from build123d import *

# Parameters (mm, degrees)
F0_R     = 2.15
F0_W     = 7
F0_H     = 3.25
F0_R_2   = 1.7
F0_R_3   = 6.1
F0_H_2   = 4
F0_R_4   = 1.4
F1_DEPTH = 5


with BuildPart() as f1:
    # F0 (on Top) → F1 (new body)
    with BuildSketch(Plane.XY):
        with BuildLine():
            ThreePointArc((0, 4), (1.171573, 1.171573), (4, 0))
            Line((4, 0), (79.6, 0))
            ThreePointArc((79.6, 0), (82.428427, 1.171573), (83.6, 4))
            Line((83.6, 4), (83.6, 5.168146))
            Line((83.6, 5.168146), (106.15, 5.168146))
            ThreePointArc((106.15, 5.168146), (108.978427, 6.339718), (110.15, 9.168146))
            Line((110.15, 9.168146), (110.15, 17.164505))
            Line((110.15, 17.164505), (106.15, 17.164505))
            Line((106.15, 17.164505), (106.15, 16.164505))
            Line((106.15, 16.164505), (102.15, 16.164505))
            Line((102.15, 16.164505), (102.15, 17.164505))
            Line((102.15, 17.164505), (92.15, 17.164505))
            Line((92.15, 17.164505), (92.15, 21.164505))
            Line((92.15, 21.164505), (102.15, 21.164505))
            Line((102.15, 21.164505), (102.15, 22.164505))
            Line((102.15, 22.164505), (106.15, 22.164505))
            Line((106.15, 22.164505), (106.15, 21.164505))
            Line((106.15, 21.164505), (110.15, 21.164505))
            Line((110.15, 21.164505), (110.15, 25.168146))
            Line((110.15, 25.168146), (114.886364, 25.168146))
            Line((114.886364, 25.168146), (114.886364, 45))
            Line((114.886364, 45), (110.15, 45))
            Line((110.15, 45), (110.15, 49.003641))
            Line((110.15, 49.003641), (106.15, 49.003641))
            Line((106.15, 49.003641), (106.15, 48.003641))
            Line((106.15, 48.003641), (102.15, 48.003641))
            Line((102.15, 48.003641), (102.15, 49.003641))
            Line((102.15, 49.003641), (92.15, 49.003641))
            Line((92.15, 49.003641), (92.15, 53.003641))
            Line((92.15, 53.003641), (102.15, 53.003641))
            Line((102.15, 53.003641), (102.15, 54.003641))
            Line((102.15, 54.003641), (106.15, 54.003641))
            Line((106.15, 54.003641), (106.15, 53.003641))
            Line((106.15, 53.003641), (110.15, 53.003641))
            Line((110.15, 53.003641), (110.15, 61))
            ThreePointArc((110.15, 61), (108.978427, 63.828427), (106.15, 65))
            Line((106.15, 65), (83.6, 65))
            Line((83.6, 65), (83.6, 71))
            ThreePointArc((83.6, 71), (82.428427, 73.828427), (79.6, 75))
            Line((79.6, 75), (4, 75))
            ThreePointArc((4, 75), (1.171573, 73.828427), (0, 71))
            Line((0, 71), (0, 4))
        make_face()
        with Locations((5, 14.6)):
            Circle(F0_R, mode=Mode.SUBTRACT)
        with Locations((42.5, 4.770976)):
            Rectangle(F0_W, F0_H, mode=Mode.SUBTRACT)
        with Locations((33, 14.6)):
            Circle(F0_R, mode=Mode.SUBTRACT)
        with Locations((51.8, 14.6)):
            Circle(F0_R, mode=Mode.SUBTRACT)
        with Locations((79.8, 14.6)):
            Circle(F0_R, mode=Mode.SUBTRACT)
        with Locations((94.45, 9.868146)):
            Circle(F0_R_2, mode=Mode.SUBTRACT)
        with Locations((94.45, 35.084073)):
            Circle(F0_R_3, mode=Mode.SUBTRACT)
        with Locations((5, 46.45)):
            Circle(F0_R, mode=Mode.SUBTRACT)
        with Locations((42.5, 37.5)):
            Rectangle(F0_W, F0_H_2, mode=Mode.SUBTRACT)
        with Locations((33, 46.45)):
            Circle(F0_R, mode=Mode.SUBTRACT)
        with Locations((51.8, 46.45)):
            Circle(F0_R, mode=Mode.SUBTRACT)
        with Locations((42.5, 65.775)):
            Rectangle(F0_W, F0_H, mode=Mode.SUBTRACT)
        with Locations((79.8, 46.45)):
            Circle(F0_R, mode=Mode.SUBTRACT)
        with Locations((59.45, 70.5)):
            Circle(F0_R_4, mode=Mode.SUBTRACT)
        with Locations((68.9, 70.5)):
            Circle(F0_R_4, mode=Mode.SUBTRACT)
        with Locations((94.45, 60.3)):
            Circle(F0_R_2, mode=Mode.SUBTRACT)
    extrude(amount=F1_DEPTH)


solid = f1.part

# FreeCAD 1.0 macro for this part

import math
import FreeCAD as App
import Part
import Sketcher

V = App.Vector

doc = App.newDocument("Part")
body = doc.addObject("PartDesign::Body", "Body")

# Sketch on XY plane
sketch1 = body.newObject("Sketcher::SketchObject", "Sketch")
sketch1.AttachmentSupport = (doc.getObject("XY_Plane"), [""])
sketch1.MapMode = "FlatFace"
sketch1.addGeometry([
    Part.ArcOfCircle(Part.Circle(V(4, 4, 0), V(0, 0, 1), 4), math.radians(-180), math.radians(-90)),  # 0
    Part.LineSegment(V(4, 0, 0), V(79.6, 0, 0)),  # 1
    Part.ArcOfCircle(Part.Circle(V(79.6, 4, 0), V(0, 0, 1), 4), math.radians(-90), math.radians(0)),  # 2
    Part.LineSegment(V(83.6, 4, 0), V(83.6, 5.2, 0)),  # 3
    Part.LineSegment(V(83.6, 5.2, 0), V(106.2, 5.2, 0)),  # 4
    Part.ArcOfCircle(Part.Circle(V(106.2, 9.2, 0), V(0, 0, 1), 4), math.radians(-90), math.radians(0)),  # 5
    Part.LineSegment(V(110.2, 9.2, 0), V(110.2, 17.2, 0)),  # 6
    Part.LineSegment(V(110.2, 17.2, 0), V(106.2, 17.2, 0)),  # 7
    Part.LineSegment(V(106.2, 17.2, 0), V(106.2, 16.2, 0)),  # 8
    Part.LineSegment(V(106.2, 16.2, 0), V(102.2, 16.2, 0)),  # 9
    Part.LineSegment(V(102.2, 16.2, 0), V(102.2, 17.2, 0)),  # 10
    Part.LineSegment(V(102.2, 17.2, 0), V(92.2, 17.2, 0)),  # 11
    Part.LineSegment(V(92.2, 17.2, 0), V(92.2, 21.2, 0)),  # 12
    Part.LineSegment(V(92.2, 21.2, 0), V(102.2, 21.2, 0)),  # 13
    Part.LineSegment(V(102.2, 21.2, 0), V(102.2, 22.2, 0)),  # 14
    Part.LineSegment(V(102.2, 22.2, 0), V(106.2, 22.2, 0)),  # 15
    Part.LineSegment(V(106.2, 22.2, 0), V(106.2, 21.2, 0)),  # 16
    Part.LineSegment(V(106.2, 21.2, 0), V(110.2, 21.2, 0)),  # 17
    Part.LineSegment(V(110.2, 21.2, 0), V(110.2, 25.2, 0)),  # 18
    Part.LineSegment(V(110.2, 25.2, 0), V(114.9, 25.2, 0)),  # 19
    Part.LineSegment(V(114.9, 25.2, 0), V(114.9, 45, 0)),  # 20
    Part.LineSegment(V(114.9, 45, 0), V(110.2, 45, 0)),  # 21
    Part.LineSegment(V(110.2, 45, 0), V(110.2, 49, 0)),  # 22
    Part.LineSegment(V(110.2, 49, 0), V(106.2, 49, 0)),  # 23
    Part.LineSegment(V(106.2, 49, 0), V(106.2, 48, 0)),  # 24
    Part.LineSegment(V(106.2, 48, 0), V(102.2, 48, 0)),  # 25
    Part.LineSegment(V(102.2, 48, 0), V(102.2, 49, 0)),  # 26
    Part.LineSegment(V(102.2, 49, 0), V(92.2, 49, 0)),  # 27
    Part.LineSegment(V(92.2, 49, 0), V(92.2, 53, 0)),  # 28
    Part.LineSegment(V(92.2, 53, 0), V(102.2, 53, 0)),  # 29
    Part.LineSegment(V(102.2, 53, 0), V(102.2, 54, 0)),  # 30
    Part.LineSegment(V(102.2, 54, 0), V(106.2, 54, 0)),  # 31
    Part.LineSegment(V(106.2, 54, 0), V(106.2, 53, 0)),  # 32
    Part.LineSegment(V(106.2, 53, 0), V(110.2, 53, 0)),  # 33
    Part.LineSegment(V(110.2, 53, 0), V(110.2, 61, 0)),  # 34
    Part.ArcOfCircle(Part.Circle(V(106.1, 61, 0), V(0, 0, 1), 4), math.radians(0), math.radians(90)),  # 35
    Part.LineSegment(V(106.2, 65, 0), V(83.6, 65, 0)),  # 36
    Part.LineSegment(V(83.6, 65, 0), V(83.6, 71, 0)),  # 37
    Part.ArcOfCircle(Part.Circle(V(79.6, 71, 0), V(0, 0, 1), 4), math.radians(0), math.radians(90)),  # 38
    Part.LineSegment(V(79.6, 75, 0), V(4, 75, 0)),  # 39
    Part.ArcOfCircle(Part.Circle(V(4, 71, 0), V(0, 0, 1), 4), math.radians(90), math.radians(180)),  # 40
    Part.LineSegment(V(0, 71, 0), V(0, 4, 0)),  # 41
    Part.Circle(V(5, 14.6, 0), V(0, 0, 1), 2.1),  # 42
    Part.LineSegment(V(46, 3.1, 0), V(39, 3.1, 0)),  # 43
    Part.LineSegment(V(39, 3.1, 0), V(39, 6.4, 0)),  # 44
    Part.LineSegment(V(39, 6.4, 0), V(46, 6.4, 0)),  # 45
    Part.LineSegment(V(46, 6.4, 0), V(46, 3.1, 0)),  # 46
    Part.Circle(V(33, 14.6, 0), V(0, 0, 1), 2.1),  # 47
    Part.LineSegment(V(46, 35.5, 0), V(39, 35.5, 0)),  # 48
    Part.LineSegment(V(39, 35.5, 0), V(39, 39.5, 0)),  # 49
    Part.LineSegment(V(39, 39.5, 0), V(46, 39.5, 0)),  # 50
    Part.LineSegment(V(46, 39.5, 0), V(46, 35.5, 0)),  # 51
    Part.Circle(V(51.8, 14.6, 0), V(0, 0, 1), 2.1),  # 52
    Part.Circle(V(94.5, 9.9, 0), V(0, 0, 1), 1.7),  # 53
    Part.Circle(V(79.8, 14.6, 0), V(0, 0, 1), 2.1),  # 54
    Part.Circle(V(94.5, 35.1, 0), V(0, 0, 1), 6.1),  # 55
    Part.Circle(V(5, 46.5, 0), V(0, 0, 1), 2.1),  # 56
    Part.Circle(V(33, 46.5, 0), V(0, 0, 1), 2.1),  # 57
    Part.LineSegment(V(46, 64.2, 0), V(39, 64.2, 0)),  # 58
    Part.LineSegment(V(39, 64.2, 0), V(39, 67.4, 0)),  # 59
    Part.LineSegment(V(39, 67.4, 0), V(46, 67.4, 0)),  # 60
    Part.LineSegment(V(46, 67.4, 0), V(46, 64.2, 0)),  # 61
    Part.Circle(V(51.8, 46.5, 0), V(0, 0, 1), 2.1),  # 62
    Part.Circle(V(79.8, 46.5, 0), V(0, 0, 1), 2.1),  # 63
    Part.Circle(V(59.5, 70.5, 0), V(0, 0, 1), 1.4),  # 64
    Part.Circle(V(68.9, 70.5, 0), V(0, 0, 1), 1.4),  # 65
    Part.Circle(V(94.5, 60.3, 0), V(0, 0, 1), 1.7),  # 66
], False)
sketch1.addConstraint([
    Sketcher.Constraint("Tangent", 0, 2, 1, 1),
    Sketcher.Constraint("Tangent", 1, 2, 2, 1),
    Sketcher.Constraint("Tangent", 2, 2, 3, 1),
    Sketcher.Constraint("Coincident", 3, 2, 4, 1),
    Sketcher.Constraint("Tangent", 4, 2, 5, 1),
    Sketcher.Constraint("Tangent", 5, 2, 6, 1),
    Sketcher.Constraint("Coincident", 6, 2, 7, 1),
    Sketcher.Constraint("Coincident", 7, 2, 8, 1),
    Sketcher.Constraint("Coincident", 8, 2, 9, 1),
    Sketcher.Constraint("Coincident", 9, 2, 10, 1),
    Sketcher.Constraint("Coincident", 10, 2, 11, 1),
    Sketcher.Constraint("Coincident", 11, 2, 12, 1),
    Sketcher.Constraint("Coincident", 12, 2, 13, 1),
    Sketcher.Constraint("Coincident", 13, 2, 14, 1),
    Sketcher.Constraint("Coincident", 14, 2, 15, 1),
    Sketcher.Constraint("Coincident", 15, 2, 16, 1),
    Sketcher.Constraint("Coincident", 16, 2, 17, 1),
    Sketcher.Constraint("Coincident", 17, 2, 18, 1),
    Sketcher.Constraint("Coincident", 18, 2, 19, 1),
    Sketcher.Constraint("Coincident", 19, 2, 20, 1),
    Sketcher.Constraint("Coincident", 20, 2, 21, 1),
    Sketcher.Constraint("Coincident", 21, 2, 22, 1),
    Sketcher.Constraint("Coincident", 22, 2, 23, 1),
    Sketcher.Constraint("Coincident", 23, 2, 24, 1),
    Sketcher.Constraint("Coincident", 24, 2, 25, 1),
    Sketcher.Constraint("Coincident", 25, 2, 26, 1),
    Sketcher.Constraint("Coincident", 26, 2, 27, 1),
    Sketcher.Constraint("Coincident", 27, 2, 28, 1),
    Sketcher.Constraint("Coincident", 28, 2, 29, 1),
    Sketcher.Constraint("Coincident", 29, 2, 30, 1),
    Sketcher.Constraint("Coincident", 30, 2, 31, 1),
    Sketcher.Constraint("Coincident", 31, 2, 32, 1),
    Sketcher.Constraint("Coincident", 32, 2, 33, 1),
    Sketcher.Constraint("Coincident", 33, 2, 34, 1),
    Sketcher.Constraint("Tangent", 34, 2, 35, 1),
    Sketcher.Constraint("Tangent", 35, 2, 36, 1),
    Sketcher.Constraint("Coincident", 36, 2, 37, 1),
    Sketcher.Constraint("Tangent", 37, 2, 38, 1),
    Sketcher.Constraint("Tangent", 38, 2, 39, 1),
    Sketcher.Constraint("Tangent", 39, 2, 40, 1),
    Sketcher.Constraint("Tangent", 40, 2, 41, 1),
    Sketcher.Constraint("Tangent", 41, 2, 0, 1),
    Sketcher.Constraint("Coincident", 43, 2, 44, 1),
    Sketcher.Constraint("Coincident", 44, 2, 45, 1),
    Sketcher.Constraint("Coincident", 45, 2, 46, 1),
    Sketcher.Constraint("Coincident", 46, 2, 43, 1),
    Sketcher.Constraint("Coincident", 48, 2, 49, 1),
    Sketcher.Constraint("Coincident", 49, 2, 50, 1),
    Sketcher.Constraint("Coincident", 50, 2, 51, 1),
    Sketcher.Constraint("Coincident", 51, 2, 48, 1),
    Sketcher.Constraint("Coincident", 58, 2, 59, 1),
    Sketcher.Constraint("Coincident", 59, 2, 60, 1),
    Sketcher.Constraint("Coincident", 60, 2, 61, 1),
    Sketcher.Constraint("Coincident", 61, 2, 58, 1),
    Sketcher.Constraint("Horizontal", 1),
    Sketcher.Constraint("Vertical", 3),
    Sketcher.Constraint("Horizontal", 4),
    Sketcher.Constraint("Vertical", 6),
    Sketcher.Constraint("Horizontal", 7),
    Sketcher.Constraint("Vertical", 8),
    Sketcher.Constraint("Horizontal", 9),
    Sketcher.Constraint("Vertical", 10),
    Sketcher.Constraint("Horizontal", 11),
    Sketcher.Constraint("Vertical", 12),
    Sketcher.Constraint("Horizontal", 13),
    Sketcher.Constraint("Vertical", 14),
    Sketcher.Constraint("Horizontal", 15),
    Sketcher.Constraint("Vertical", 16),
    Sketcher.Constraint("Horizontal", 17),
    Sketcher.Constraint("Vertical", 18),
    Sketcher.Constraint("Horizontal", 19),
    Sketcher.Constraint("Vertical", 20),
    Sketcher.Constraint("Horizontal", 21),
    Sketcher.Constraint("Vertical", 22),
    Sketcher.Constraint("Horizontal", 23),
    Sketcher.Constraint("Vertical", 24),
    Sketcher.Constraint("Horizontal", 25),
    Sketcher.Constraint("Vertical", 26),
    Sketcher.Constraint("Horizontal", 27),
    Sketcher.Constraint("Vertical", 28),
    Sketcher.Constraint("Horizontal", 29),
    Sketcher.Constraint("Vertical", 30),
    Sketcher.Constraint("Horizontal", 31),
    Sketcher.Constraint("Vertical", 32),
    Sketcher.Constraint("Horizontal", 33),
    Sketcher.Constraint("Vertical", 34),
    Sketcher.Constraint("Horizontal", 36),
    Sketcher.Constraint("Vertical", 37),
    Sketcher.Constraint("Horizontal", 39),
    Sketcher.Constraint("Vertical", 41),
    Sketcher.Constraint("Horizontal", 43),
    Sketcher.Constraint("Vertical", 44),
    Sketcher.Constraint("Horizontal", 45),
    Sketcher.Constraint("Vertical", 46),
    Sketcher.Constraint("Horizontal", 48),
    Sketcher.Constraint("Vertical", 49),
    Sketcher.Constraint("Horizontal", 50),
    Sketcher.Constraint("Vertical", 51),
    Sketcher.Constraint("Horizontal", 58),
    Sketcher.Constraint("Vertical", 59),
    Sketcher.Constraint("Horizontal", 60),
    Sketcher.Constraint("Vertical", 61),
    Sketcher.Constraint("Equal", 0, 2),
    Sketcher.Constraint("Equal", 2, 5),
    Sketcher.Constraint("Equal", 5, 35),
    Sketcher.Constraint("Equal", 35, 38),
    Sketcher.Constraint("Equal", 38, 40),
    Sketcher.Constraint("Equal", 42, 47),
    Sketcher.Constraint("Equal", 47, 52),
    Sketcher.Constraint("Equal", 52, 54),
    Sketcher.Constraint("Equal", 54, 56),
    Sketcher.Constraint("Equal", 56, 57),
    Sketcher.Constraint("Equal", 57, 62),
    Sketcher.Constraint("Equal", 62, 63),
    Sketcher.Constraint("Equal", 64, 65),
    Sketcher.Constraint("Equal", 53, 66),
    Sketcher.Constraint("PointOnObject", 0, 2, -1),
    Sketcher.Constraint("PointOnObject", 40, 2, -2),
    Sketcher.Constraint("Horizontal", 42, 3, 47, 3),
    Sketcher.Constraint("Horizontal", 47, 3, 52, 3),
    Sketcher.Constraint("Horizontal", 52, 3, 54, 3),
    Sketcher.Constraint("Horizontal", 56, 3, 57, 3),
    Sketcher.Constraint("Horizontal", 57, 3, 62, 3),
    Sketcher.Constraint("Horizontal", 62, 3, 63, 3),
    Sketcher.Constraint("Horizontal", 64, 3, 65, 3),
    Sketcher.Constraint("Horizontal", 7, 2, 10, 2),
    Sketcher.Constraint("Horizontal", 13, 2, 16, 2),
    Sketcher.Constraint("Horizontal", 23, 2, 26, 2),
    Sketcher.Constraint("Horizontal", 29, 2, 32, 2),
    Sketcher.Constraint("Vertical", 5, 3, 35, 3),
    Sketcher.Constraint("Vertical", 2, 3, 38, 3),
    Sketcher.Constraint("Vertical", 53, 3, 55, 3),
    Sketcher.Constraint("Vertical", 42, 3, 56, 3),
    Sketcher.Constraint("Vertical", 47, 3, 57, 3),
    Sketcher.Constraint("Vertical", 52, 3, 62, 3),
    Sketcher.Constraint("Vertical", 54, 3, 63, 3),
    Sketcher.Constraint("Vertical", 55, 3, 66, 3),
    Sketcher.Constraint("Vertical", 4, 2, 7, 2),
    Sketcher.Constraint("Vertical", 10, 2, 13, 2),
    Sketcher.Constraint("Vertical", 8, 2, 15, 2),
    Sketcher.Constraint("Vertical", 6, 2, 17, 2),
    Sketcher.Constraint("Vertical", 18, 2, 21, 2),
    Sketcher.Constraint("Vertical", 16, 2, 23, 2),
    Sketcher.Constraint("Vertical", 14, 2, 25, 2),
    Sketcher.Constraint("Vertical", 12, 2, 27, 2),
    Sketcher.Constraint("Vertical", 26, 2, 29, 2),
    Sketcher.Constraint("Vertical", 24, 2, 31, 2),
    Sketcher.Constraint("Vertical", 44, 2, 48, 2),
    Sketcher.Constraint("Vertical", 46, 2, 50, 2),
    Sketcher.Constraint("Vertical", 49, 2, 58, 2),
    Sketcher.Constraint("Vertical", 51, 2, 60, 2),
    Sketcher.Constraint("Equal", 7, 9),
    Sketcher.Constraint("Equal", 33, 12),
    Sketcher.Constraint("Equal", 10, 14),
    Sketcher.Constraint("Equal", 18, 22),
    Sketcher.Constraint("Equal", 16, 24),
    Sketcher.Constraint("Equal", 12, 28),
    Sketcher.Constraint("Equal", 26, 30),
    Sketcher.Constraint("Equal", 6, 34),
    Sketcher.Constraint("Equal", 28, 49),
    Sketcher.Constraint("Equal", 46, 59),
    Sketcher.Constraint("Radius", 0, 4.0),
    Sketcher.Constraint("Diameter", 42, 4.3),
    Sketcher.Constraint("Diameter", 53, 3.4),
    Sketcher.Constraint("Diameter", 55, 12.2),
    Sketcher.Constraint("Diameter", 64, 2.8),
    Sketcher.Constraint("DistanceX", 11, 2, 11, 1, 10.0),
    Sketcher.Constraint("DistanceX", 43, 2, 43, 1, 7.0),
    Sketcher.Constraint("DistanceY", 8, 2, 8, 1, 1.0),
    Sketcher.Constraint("DistanceY", 37, 1, 37, 2, 6.0),
    Sketcher.Constraint("DistanceY", 41, 2, 41, 1, 67.0),
    Sketcher.Constraint("DistanceX", 1, 1, 1, 2, 75.6),
    Sketcher.Constraint("DistanceX", -1, 1, 42, 3, 5.0),
    Sketcher.Constraint("DistanceX", -1, 1, 47, 3, 33.0),
    Sketcher.Constraint("DistanceY", -1, 1, 20, 2, 45.0),
    Sketcher.Constraint("DistanceX", -1, 1, 43, 2, 39.0),
    Sketcher.Constraint("DistanceX", 4, 1, 4, 2, 22.55),
    Sketcher.Constraint("DistanceY", 44, 1, 44, 2, 3.25),
    Sketcher.Constraint("DistanceY", -1, 1, 42, 3, 14.6),
    Sketcher.Constraint("DistanceX", -1, 1, 52, 3, 51.8),
    Sketcher.Constraint("DistanceX", -1, 1, 54, 3, 79.8),
    Sketcher.Constraint("DistanceY", -1, 1, 64, 3, 70.5),
    Sketcher.Constraint("DistanceX", -1, 1, 65, 3, 68.9),
    Sketcher.Constraint("DistanceY", -1, 1, 66, 3, 60.3),
    Sketcher.Constraint("DistanceY", -1, 1, 48, 2, 35.5),
    Sketcher.Constraint("DistanceY", -1, 1, 59, 2, 67.4),
    Sketcher.Constraint("DistanceX", -1, 1, 53, 3, 94.45),
    Sketcher.Constraint("DistanceY", -1, 1, 56, 3, 46.45),
    Sketcher.Constraint("DistanceX", -1, 1, 64, 3, 59.45),
    Sketcher.Constraint("DistanceY", 6, 1, 6, 2, 7.996359),
    Sketcher.Constraint("DistanceX", 19, 1, 19, 2, 4.736364),
    Sketcher.Constraint("DistanceY", 3, 1, 3, 2, 1.168146),
    Sketcher.Constraint("DistanceY", -1, 1, 53, 3, 9.868146),
    Sketcher.Constraint("DistanceY", -1, 1, 55, 3, 35.084073),
    Sketcher.Constraint("DistanceY", -1, 1, 43, 2, 3.145976),
])
pad1 = body.newObject("PartDesign::Pad", "Pad")
pad1.Profile = sketch1
pad1.Length = 5

doc.recompute()
